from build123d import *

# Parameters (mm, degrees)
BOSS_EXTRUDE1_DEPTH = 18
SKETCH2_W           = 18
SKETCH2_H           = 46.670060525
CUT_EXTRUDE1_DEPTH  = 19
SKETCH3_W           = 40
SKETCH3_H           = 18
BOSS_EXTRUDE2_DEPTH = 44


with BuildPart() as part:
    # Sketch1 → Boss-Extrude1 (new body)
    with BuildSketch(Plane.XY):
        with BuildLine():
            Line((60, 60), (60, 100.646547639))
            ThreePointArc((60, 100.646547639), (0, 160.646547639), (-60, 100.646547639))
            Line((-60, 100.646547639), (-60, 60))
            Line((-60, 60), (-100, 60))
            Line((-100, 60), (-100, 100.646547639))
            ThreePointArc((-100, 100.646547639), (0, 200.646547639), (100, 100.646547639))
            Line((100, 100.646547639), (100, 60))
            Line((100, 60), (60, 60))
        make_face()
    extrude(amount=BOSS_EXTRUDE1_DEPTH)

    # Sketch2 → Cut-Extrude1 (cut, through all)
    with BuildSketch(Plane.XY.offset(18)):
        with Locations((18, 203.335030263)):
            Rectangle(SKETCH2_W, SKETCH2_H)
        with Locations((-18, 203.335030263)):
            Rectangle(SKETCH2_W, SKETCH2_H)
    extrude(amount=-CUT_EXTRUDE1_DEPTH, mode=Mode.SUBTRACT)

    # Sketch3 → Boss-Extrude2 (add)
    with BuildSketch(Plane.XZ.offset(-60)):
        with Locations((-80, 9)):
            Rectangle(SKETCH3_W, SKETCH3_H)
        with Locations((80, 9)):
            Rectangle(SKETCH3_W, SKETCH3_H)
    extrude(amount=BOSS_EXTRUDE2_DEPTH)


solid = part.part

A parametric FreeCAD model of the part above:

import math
import FreeCAD as App
import Part
import Sketcher

V = App.Vector

doc = App.newDocument("Part")
params = doc.addObject("Spreadsheet::Sheet", "Params")
for row, (alias, value) in enumerate([
    ("sketch1_radius", "100 mm"),
    ("sketch1_radius2", "60 mm"),
    ("pad1_length", "18 mm"),
    ("sketch2_width", "18 mm"),
    ("sketch3_width", "40 mm"),
    ("sketch3_height", "18 mm"),
    ("pad2_length", "44 mm"),
], start=1):
    params.set(f"A{row}", alias)
    params.set(f"B{row}", "=" + value)
    params.setAlias(f"B{row}", alias)

body = doc.addObject("PartDesign::Body", "Body")

# Sketch on XY plane
sketch1 = body.newObject("Sketcher::SketchObject", "Sketch")
sketch1.AttachmentSupport = (doc.getObject("XY_Plane"), [""])
sketch1.MapMode = "FlatFace"
sketch1.addGeometry([
    Part.LineSegment(V(60, 101, 0), V(60, 60, 0)),  # 0
    Part.LineSegment(V(60, 60, 0), V(100, 60, 0)),  # 1
    Part.LineSegment(V(100, 60, 0), V(100, 101, 0)),  # 2
    Part.ArcOfCircle(Part.Circle(V(0, 101, 0), V(0, 0, 1), 100), math.radians(0), math.radians(180)),  # 3
    Part.LineSegment(V(-100, 101, 0), V(-100, 60, 0)),  # 4
    Part.LineSegment(V(-100, 60, 0), V(-60, 60, 0)),  # 5
    Part.LineSegment(V(-60, 60, 0), V(-60, 101, 0)),  # 6
    Part.ArcOfCircle(Part.Circle(V(0, 101, 0), V(0, 0, 1), 60), math.radians(0), math.radians(180)),  # 7
], False)
sketch1.addConstraint([
    Sketcher.Constraint("Coincident", 0, 2, 1, 1),
    Sketcher.Constraint("Coincident", 1, 2, 2, 1),
    Sketcher.Constraint("Tangent", 2, 2, 3, 1),
    Sketcher.Constraint("Tangent", 3, 2, 4, 1),
    Sketcher.Constraint("Coincident", 4, 2, 5, 1),
    Sketcher.Constraint("Coincident", 5, 2, 6, 1),
    Sketcher.Constraint("Tangent", 6, 2, 7, 2),
    Sketcher.Constraint("Tangent", 7, 1, 0, 1),
    Sketcher.Constraint("Vertical", 0),
    Sketcher.Constraint("Horizontal", 1),
    Sketcher.Constraint("Vertical", 2),
    Sketcher.Constraint("Vertical", 4),
    Sketcher.Constraint("Horizontal", 5),
    Sketcher.Constraint("Vertical", 6),
    Sketcher.Constraint("Coincident", 7, 3, 3, 3),
    Sketcher.Constraint("Symmetric", 1, 2, 4, 2, -2),
    Sketcher.Constraint("Radius", 3, 100.0),
    Sketcher.Constraint("Radius", 7, 60.0),
    Sketcher.Constraint("DistanceY", -1, 1, 0, 2, 60.0),
    Sketcher.Constraint("DistanceY", 0, 2, 0, 1, 40.646548),
])
sketch1.setExpression("Constraints[16]", "Params.sketch1_radius")
sketch1.setExpression("Constraints[17]", "Params.sketch1_radius2")
pad1 = body.newObject("PartDesign::Pad", "Pad")
pad1.Profile = sketch1
pad1.setExpression("Length", "Params.pad1_length")

# Sketch on XY plane
sketch2 = body.newObject("Sketcher::SketchObject", "Sketch001")
sketch2.AttachmentSupport = (doc.getObject("XY_Plane"), [""])
sketch2.MapMode = "FlatFace"
sketch2.AttachmentOffset = App.Placement(V(0, 0, 18), App.Rotation())
sketch2.addGeometry([
    Part.LineSegment(V(9, 227, 0), V(9, 180, 0)),  # 0
    Part.LineSegment(V(9, 180, 0), V(27, 180, 0)),  # 1
    Part.LineSegment(V(27, 180, 0), V(27, 227, 0)),  # 2
    Part.LineSegment(V(27, 227, 0), V(9, 227, 0)),  # 3
    Part.LineSegment(V(-27, 227, 0), V(-27, 180, 0)),  # 4
    Part.LineSegment(V(-27, 180, 0), V(-9, 180, 0)),  # 5
    Part.LineSegment(V(-9, 180, 0), V(-9, 227, 0)),  # 6
    Part.LineSegment(V(-9, 227, 0), V(-27, 227, 0)),  # 7
], False)
sketch2.addConstraint([
    Sketcher.Constraint("Coincident", 0, 2, 1, 1),
    Sketcher.Constraint("Coincident", 1, 2, 2, 1),
    Sketcher.Constraint("Coincident", 2, 2, 3, 1),
    Sketcher.Constraint("Coincident", 3, 2, 0, 1),
    Sketcher.Constraint("Coincident", 4, 2, 5, 1),
    Sketcher.Constraint("Coincident", 5, 2, 6, 1),
    Sketcher.Constraint("Coincident", 6, 2, 7, 1),
    Sketcher.Constraint("Coincident", 7, 2, 4, 1),
    Sketcher.Constraint("Vertical", 0),
    Sketcher.Constraint("Horizontal", 1),
    Sketcher.Constraint("Vertical", 2),
    Sketcher.Constraint("Horizontal", 3),
    Sketcher.Constraint("Vertical", 4),
    Sketcher.Constraint("Horizontal", 5),
    Sketcher.Constraint("Vertical", 6),
    Sketcher.Constraint("Horizontal", 7),
    Sketcher.Constraint("Symmetric", 1, 2, 4, 2, -2),
    Sketcher.Constraint("Symmetric", 3, 2, 6, 2, -2),
    Sketcher.Constraint("DistanceX", 1, 1, 1, 2, 18.0),
    Sketcher.Constraint("DistanceX", -1, 1, 0, 2, 9.0),
    Sketcher.Constraint("DistanceY", -1, 1, 0, 2, 180.0),
    Sketcher.Constraint("DistanceY", 0, 2, 0, 1, 46.670061),
])
sketch2.setExpression("Constraints[18]", "Params.sketch2_width")
pocket1 = body.newObject("PartDesign::Pocket", "Pocket")
pocket1.Profile = sketch2
pocket1.Type = "ThroughAll"

# Sketch on XZ plane
sketch3 = body.newObject("Sketcher::SketchObject", "Sketch002")
sketch3.AttachmentSupport = (doc.getObject("XZ_Plane"), [""])
sketch3.MapMode = "FlatFace"
sketch3.AttachmentOffset = App.Placement(V(0, 0, -60), App.Rotation())
sketch3.addGeometry([
    Part.LineSegment(V(-100, 18, 0), V(-100, 0, 0)),  # 0
    Part.LineSegment(V(-100, 0, 0), V(-60, 0, 0)),  # 1
    Part.LineSegment(V(-60, 0, 0), V(-60, 18, 0)),  # 2
    Part.LineSegment(V(-60, 18, 0), V(-100, 18, 0)),  # 3
    Part.LineSegment(V(60, 18, 0), V(60, 0, 0)),  # 4
    Part.LineSegment(V(60, 0, 0), V(100, 0, 0)),  # 5
    Part.LineSegment(V(100, 0, 0), V(100, 18, 0)),  # 6
    Part.LineSegment(V(100, 18, 0), V(60, 18, 0)),  # 7
], False)
sketch3.addConstraint([
    Sketcher.Constraint("Coincident", 0, 2, 1, 1),
    Sketcher.Constraint("Coincident", 1, 2, 2, 1),
    Sketcher.Constraint("Coincident", 2, 2, 3, 1),
    Sketcher.Constraint("Coincident", 3, 2, 0, 1),
    Sketcher.Constraint("Coincident", 4, 2, 5, 1),
    Sketcher.Constraint("Coincident", 5, 2, 6, 1),
    Sketcher.Constraint("Coincident", 6, 2, 7, 1),
    Sketcher.Constraint("Coincident", 7, 2, 4, 1),
    Sketcher.Constraint("Vertical", 0),
    Sketcher.Constraint("Horizontal", 1),
    Sketcher.Constraint("Vertical", 2),
    Sketcher.Constraint("Horizontal", 3),
    Sketcher.Constraint("Vertical", 4),
    Sketcher.Constraint("Horizontal", 5),
    Sketcher.Constraint("Vertical", 6),
    Sketcher.Constraint("Horizontal", 7),
    Sketcher.Constraint("Symmetric", 1, 2, 4, 2, -1, 1),
    Sketcher.Constraint("Symmetric", 0, 2, 5, 2, -2),
    Sketcher.Constraint("Horizontal", 3, 2, 6, 2),
    Sketcher.Constraint("DistanceX", 1, 1, 1, 2, 40.0),
    Sketcher.Constraint("DistanceY", 0, 2, 0, 1, 18.0),
    Sketcher.Constraint("DistanceX", 0, 2, -1, 1, 100.0),
])
sketch3.setExpression("Constraints[19]", "Params.sketch3_width")
sketch3.setExpression("Constraints[20]", "Params.sketch3_height")
pad2 = body.newObject("PartDesign::Pad", "Pad001")
pad2.Profile = sketch3
pad2.setExpression("Length", "Params.pad2_length")

doc.recompute()
